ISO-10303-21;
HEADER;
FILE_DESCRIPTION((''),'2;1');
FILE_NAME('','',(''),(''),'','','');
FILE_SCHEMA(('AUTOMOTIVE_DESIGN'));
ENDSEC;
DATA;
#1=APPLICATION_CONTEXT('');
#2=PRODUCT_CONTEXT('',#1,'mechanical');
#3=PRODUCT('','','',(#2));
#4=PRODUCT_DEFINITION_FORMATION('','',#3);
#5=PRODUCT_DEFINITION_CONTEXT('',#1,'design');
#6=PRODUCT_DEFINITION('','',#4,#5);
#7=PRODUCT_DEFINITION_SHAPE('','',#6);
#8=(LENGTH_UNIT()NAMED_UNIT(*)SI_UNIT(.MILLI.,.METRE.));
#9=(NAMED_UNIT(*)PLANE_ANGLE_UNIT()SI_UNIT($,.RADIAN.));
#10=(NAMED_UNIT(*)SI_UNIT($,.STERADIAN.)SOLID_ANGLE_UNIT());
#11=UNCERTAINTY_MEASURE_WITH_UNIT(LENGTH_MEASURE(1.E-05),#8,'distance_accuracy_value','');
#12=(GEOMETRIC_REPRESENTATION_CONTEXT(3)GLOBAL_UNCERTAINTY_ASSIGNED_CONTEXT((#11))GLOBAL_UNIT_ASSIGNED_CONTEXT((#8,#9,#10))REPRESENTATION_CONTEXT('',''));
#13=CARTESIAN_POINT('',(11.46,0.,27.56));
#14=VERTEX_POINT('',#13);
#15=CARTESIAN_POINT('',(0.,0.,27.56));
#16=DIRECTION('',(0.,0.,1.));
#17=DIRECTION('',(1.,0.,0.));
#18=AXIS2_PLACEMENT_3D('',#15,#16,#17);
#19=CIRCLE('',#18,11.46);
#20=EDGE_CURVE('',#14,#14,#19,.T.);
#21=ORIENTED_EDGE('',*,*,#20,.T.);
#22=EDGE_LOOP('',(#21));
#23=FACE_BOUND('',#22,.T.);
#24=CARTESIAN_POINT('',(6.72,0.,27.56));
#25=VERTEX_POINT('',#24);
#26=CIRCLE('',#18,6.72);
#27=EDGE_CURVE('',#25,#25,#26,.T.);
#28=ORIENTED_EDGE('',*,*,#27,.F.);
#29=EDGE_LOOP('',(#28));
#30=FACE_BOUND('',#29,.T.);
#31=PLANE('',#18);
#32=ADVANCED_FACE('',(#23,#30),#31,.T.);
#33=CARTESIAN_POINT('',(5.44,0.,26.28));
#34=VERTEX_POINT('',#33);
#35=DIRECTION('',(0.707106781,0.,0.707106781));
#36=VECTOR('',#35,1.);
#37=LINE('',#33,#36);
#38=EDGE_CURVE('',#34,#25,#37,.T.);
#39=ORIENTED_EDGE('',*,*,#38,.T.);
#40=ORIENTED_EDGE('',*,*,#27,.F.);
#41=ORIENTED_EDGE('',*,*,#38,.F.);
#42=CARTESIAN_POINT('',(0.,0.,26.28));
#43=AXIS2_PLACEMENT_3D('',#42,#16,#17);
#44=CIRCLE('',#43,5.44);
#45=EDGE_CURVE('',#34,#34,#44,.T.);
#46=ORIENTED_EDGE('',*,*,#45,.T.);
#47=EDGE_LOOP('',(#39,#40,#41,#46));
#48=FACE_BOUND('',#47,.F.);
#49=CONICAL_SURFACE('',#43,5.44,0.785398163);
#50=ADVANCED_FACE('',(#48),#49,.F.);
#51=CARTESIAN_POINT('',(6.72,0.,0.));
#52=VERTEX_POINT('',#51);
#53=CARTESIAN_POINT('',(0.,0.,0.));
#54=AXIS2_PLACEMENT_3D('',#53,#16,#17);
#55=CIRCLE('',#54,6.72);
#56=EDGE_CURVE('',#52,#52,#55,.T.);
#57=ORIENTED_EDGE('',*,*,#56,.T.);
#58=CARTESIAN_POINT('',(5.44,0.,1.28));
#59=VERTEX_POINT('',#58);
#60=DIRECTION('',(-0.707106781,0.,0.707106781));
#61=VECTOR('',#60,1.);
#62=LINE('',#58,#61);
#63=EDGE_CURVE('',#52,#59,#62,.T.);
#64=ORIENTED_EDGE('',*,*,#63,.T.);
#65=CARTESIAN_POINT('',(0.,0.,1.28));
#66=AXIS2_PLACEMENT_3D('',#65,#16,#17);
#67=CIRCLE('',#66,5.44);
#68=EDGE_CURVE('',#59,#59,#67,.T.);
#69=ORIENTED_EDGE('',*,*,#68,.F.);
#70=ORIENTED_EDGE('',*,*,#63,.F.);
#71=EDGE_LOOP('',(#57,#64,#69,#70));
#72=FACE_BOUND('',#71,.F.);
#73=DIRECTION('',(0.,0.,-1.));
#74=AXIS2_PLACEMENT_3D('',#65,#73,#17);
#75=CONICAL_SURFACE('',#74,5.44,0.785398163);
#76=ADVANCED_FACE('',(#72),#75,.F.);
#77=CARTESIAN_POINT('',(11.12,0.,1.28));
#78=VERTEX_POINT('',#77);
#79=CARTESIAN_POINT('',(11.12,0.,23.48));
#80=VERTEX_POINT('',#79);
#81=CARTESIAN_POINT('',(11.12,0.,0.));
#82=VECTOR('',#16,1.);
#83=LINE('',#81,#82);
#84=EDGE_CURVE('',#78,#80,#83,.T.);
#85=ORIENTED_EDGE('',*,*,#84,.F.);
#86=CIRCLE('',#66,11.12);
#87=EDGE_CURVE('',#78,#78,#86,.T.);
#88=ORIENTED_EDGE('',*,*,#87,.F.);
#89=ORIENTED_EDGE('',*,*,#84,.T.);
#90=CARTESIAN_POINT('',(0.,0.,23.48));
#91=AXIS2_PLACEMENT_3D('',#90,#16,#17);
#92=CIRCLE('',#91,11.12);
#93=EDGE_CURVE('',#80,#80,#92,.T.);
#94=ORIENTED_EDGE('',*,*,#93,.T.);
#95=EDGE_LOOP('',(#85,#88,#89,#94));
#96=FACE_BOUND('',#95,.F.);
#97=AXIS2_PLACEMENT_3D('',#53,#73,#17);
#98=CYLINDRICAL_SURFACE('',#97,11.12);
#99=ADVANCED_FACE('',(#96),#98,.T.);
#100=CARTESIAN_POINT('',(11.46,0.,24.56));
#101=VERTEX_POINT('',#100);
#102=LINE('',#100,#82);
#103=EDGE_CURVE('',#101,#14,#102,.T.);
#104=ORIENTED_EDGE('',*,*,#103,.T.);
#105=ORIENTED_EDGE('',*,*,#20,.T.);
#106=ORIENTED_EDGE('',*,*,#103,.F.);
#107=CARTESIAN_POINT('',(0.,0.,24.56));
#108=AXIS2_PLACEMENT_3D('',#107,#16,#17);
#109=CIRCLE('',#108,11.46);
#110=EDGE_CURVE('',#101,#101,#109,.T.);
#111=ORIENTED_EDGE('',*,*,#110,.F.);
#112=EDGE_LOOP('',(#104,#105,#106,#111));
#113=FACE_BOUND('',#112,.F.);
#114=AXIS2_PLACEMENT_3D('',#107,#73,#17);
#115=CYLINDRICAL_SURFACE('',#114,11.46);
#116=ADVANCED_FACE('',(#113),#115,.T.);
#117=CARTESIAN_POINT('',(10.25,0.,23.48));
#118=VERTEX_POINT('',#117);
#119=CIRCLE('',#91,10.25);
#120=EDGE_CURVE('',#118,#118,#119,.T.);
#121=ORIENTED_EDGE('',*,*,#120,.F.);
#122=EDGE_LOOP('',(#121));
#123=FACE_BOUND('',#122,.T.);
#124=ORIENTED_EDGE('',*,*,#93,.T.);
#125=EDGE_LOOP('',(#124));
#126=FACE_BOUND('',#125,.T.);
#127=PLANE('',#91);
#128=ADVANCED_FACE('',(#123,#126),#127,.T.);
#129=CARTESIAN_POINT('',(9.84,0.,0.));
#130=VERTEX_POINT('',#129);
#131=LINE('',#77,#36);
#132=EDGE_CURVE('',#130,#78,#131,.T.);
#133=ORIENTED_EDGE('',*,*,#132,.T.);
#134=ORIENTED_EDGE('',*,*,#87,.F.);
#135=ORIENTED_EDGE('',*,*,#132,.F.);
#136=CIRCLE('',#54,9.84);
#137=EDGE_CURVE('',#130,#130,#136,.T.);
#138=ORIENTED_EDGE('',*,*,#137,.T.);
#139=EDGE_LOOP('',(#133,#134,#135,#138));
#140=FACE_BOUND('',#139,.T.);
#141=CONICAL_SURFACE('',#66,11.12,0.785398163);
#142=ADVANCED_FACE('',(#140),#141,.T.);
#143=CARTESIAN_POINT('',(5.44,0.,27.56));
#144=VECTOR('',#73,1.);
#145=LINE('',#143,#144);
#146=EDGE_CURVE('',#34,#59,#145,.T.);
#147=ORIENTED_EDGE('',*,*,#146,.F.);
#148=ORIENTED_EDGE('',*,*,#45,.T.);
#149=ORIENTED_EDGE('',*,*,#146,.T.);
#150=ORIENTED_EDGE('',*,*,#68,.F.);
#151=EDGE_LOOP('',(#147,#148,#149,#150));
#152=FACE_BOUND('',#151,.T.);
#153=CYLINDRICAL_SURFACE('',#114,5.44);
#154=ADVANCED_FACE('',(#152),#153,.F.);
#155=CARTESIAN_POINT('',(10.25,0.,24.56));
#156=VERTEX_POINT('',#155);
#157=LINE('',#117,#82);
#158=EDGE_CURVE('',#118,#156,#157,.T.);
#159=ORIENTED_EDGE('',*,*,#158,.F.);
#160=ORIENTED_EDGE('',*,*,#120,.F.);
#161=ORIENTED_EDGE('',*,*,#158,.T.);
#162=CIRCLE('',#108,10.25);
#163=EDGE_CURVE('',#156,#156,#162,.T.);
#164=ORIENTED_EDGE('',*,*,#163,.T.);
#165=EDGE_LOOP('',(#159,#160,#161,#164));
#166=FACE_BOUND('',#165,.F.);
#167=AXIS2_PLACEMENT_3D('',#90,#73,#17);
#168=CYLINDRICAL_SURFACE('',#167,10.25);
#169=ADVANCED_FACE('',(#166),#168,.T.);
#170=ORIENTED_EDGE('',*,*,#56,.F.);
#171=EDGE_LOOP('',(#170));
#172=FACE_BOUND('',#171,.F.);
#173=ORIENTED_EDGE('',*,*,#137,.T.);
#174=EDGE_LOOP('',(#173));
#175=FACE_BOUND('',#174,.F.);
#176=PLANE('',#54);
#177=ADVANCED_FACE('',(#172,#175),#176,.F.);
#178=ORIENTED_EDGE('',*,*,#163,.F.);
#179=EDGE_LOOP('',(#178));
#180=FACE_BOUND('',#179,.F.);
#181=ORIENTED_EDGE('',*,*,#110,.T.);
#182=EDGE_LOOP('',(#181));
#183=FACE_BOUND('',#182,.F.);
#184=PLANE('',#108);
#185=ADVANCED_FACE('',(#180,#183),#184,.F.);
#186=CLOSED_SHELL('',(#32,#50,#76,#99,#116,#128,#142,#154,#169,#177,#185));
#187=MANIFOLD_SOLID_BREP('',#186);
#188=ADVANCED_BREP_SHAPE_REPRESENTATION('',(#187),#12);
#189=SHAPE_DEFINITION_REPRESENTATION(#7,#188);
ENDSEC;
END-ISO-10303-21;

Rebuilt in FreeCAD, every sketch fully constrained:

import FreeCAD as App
import Part
import Sketcher


def edges_at(feature, points):
    """Names of the edges that pass closest to the given points."""
    edges = feature.Shape.Edges
    near = lambda p: min(range(len(edges)), key=lambda i: edges[i].distToShape(Part.Vertex(*p))[0])
    return sorted({f"Edge{near(p) + 1}" for p in points})

doc = App.newDocument("Part")
body = doc.addObject("PartDesign::Body", "Body")

sketch1 = body.newObject("Sketcher::SketchObject", "Sketch")
sketch1.AttachmentSupport = (doc.getObject("XY_Plane"), [""])
sketch1.MapMode = "FlatFace"
sketch1.addGeometry([
    Part.Circle(App.Vector(0, 0, 0), App.Vector(0, 0, 1), 11.12),
    Part.Circle(App.Vector(0, 0, 0), App.Vector(0, 0, 1), 5.44),
], False)
sketch1.addConstraint([
    Sketcher.Constraint("Coincident", 0, 3, -1, 1),
    Sketcher.Constraint("Coincident", 1, 3, -1, 1),
    Sketcher.Constraint("Diameter", 0, 22.24),
    Sketcher.Constraint("Diameter", 1, 10.88),
])
pad1 = body.newObject("PartDesign::Pad", "Pad")
pad1.Profile = sketch1
pad1.Length = 23.48

sketch2 = body.newObject("Sketcher::SketchObject", "Sketch001")
sketch2.AttachmentSupport = (doc.getObject("XY_Plane"), [""])
sketch2.MapMode = "FlatFace"
sketch2.AttachmentOffset = App.Placement(App.Vector(0, 0, 23.48), App.Rotation())
sketch2.addGeometry([
    Part.Circle(App.Vector(0, 0, 0), App.Vector(0, 0, 1), 10.25),
    Part.Circle(App.Vector(0, 0, 0), App.Vector(0, 0, 1), 5.44),
], False)
sketch2.addConstraint([
    Sketcher.Constraint("Coincident", 0, 3, -1, 1),
    Sketcher.Constraint("Coincident", 1, 3, -1, 1),
    Sketcher.Constraint("Diameter", 0, 20.5),
    Sketcher.Constraint("Diameter", 1, 10.88),
])
pad2 = body.newObject("PartDesign::Pad", "Pad001")
pad2.Profile = sketch2
pad2.Length = 1.08

sketch3 = body.newObject("Sketcher::SketchObject", "Sketch002")
sketch3.AttachmentSupport = (doc.getObject("XY_Plane"), [""])
sketch3.MapMode = "FlatFace"
sketch3.AttachmentOffset = App.Placement(App.Vector(0, 0, 24.56), App.Rotation())
sketch3.addGeometry([
    Part.Circle(App.Vector(0, 0, 0), App.Vector(0, 0, 1), 11.46),
    Part.Circle(App.Vector(0, 0, 0), App.Vector(0, 0, 1), 5.44),
], False)
sketch3.addConstraint([
    Sketcher.Constraint("Coincident", 0, 3, -1, 1),
    Sketcher.Constraint("Coincident", 1, 3, -1, 1),
    Sketcher.Constraint("Diameter", 0, 22.92),
    Sketcher.Constraint("Diameter", 1, 10.88),
])
pad3 = body.newObject("PartDesign::Pad", "Pad002")
pad3.Profile = sketch3
pad3.Length = 3
doc.recompute()

chamfer = body.newObject("PartDesign::Chamfer", "Chamfer")
chamfer.Base = (pad3, edges_at(pad3, [(-11.12, 0, 0)]))
chamfer.Size = 1.28
doc.recompute()

chamfer2 = body.newObject("PartDesign::Chamfer", "Chamfer001")
chamfer2.Base = (chamfer, edges_at(chamfer, [(-5.44, 0, 0)]))
chamfer2.Size = 1.28
doc.recompute()

chamfer3 = body.newObject("PartDesign::Chamfer", "Chamfer002")
chamfer3.Base = (chamfer2, edges_at(chamfer2, [(-5.44, 0, 27.56)]))
chamfer3.Size = 1.28

doc.recompute()
